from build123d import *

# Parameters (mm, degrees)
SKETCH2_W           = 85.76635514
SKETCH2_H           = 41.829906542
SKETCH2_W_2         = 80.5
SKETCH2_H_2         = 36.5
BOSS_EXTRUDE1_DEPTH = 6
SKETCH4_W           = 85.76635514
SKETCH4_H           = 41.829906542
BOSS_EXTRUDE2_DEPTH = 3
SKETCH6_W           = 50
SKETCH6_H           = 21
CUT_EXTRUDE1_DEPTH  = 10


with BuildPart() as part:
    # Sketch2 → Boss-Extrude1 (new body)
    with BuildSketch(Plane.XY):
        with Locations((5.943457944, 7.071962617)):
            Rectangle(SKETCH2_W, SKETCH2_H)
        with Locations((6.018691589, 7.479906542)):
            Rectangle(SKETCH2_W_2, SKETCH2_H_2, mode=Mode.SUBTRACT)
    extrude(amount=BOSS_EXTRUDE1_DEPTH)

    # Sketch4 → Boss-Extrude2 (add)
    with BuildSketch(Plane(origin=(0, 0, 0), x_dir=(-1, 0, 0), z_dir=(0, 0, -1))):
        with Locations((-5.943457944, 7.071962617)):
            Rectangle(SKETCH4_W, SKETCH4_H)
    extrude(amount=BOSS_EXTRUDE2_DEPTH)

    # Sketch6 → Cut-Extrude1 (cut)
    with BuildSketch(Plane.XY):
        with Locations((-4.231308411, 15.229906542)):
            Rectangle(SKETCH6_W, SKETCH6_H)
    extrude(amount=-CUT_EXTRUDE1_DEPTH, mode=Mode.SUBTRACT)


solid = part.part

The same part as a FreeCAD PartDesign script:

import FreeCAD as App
import Part
import Sketcher


def add_polygon(sketch, points):
    """Adds a closed chain of lines whose ends are joined by coincident constraints."""
    first, n = sketch.GeometryCount, len(points)
    for a, b in zip(points, points[1:] + points[:1]):
        sketch.addGeometry(Part.LineSegment(App.Vector(*a, 0), App.Vector(*b, 0)), False)
    for i in range(n):
        sketch.addConstraint(Sketcher.Constraint("Coincident", first + i, 2, first + (i + 1) % n, 1))

doc = App.newDocument("Part")
params = doc.addObject("Spreadsheet::Sheet", "Params")
for row, (alias, value) in enumerate([
    ("sketch1_width", "80.5 mm"),
    ("sketch1_height", "36.5 mm"),
    ("pad1_length", "6 mm"),
    ("pad2_length", "3 mm"),
    ("sketch3_width", "50 mm"),
    ("sketch3_height", "21 mm"),
    ("pocket1_length", "10 mm"),
], start=1):
    params.set(f"A{row}", alias)
    params.set(f"B{row}", "=" + value)
    params.setAlias(f"B{row}", alias)

body = doc.addObject("PartDesign::Body", "Body")

# Sketch on XY plane
sketch1 = body.newObject("Sketcher::SketchObject", "Sketch")
sketch1.AttachmentSupport = (doc.getObject("XY_Plane"), [""])
sketch1.MapMode = "FlatFace"
add_polygon(sketch1, [(-37, 28), (-37, -14), (49, -14), (49, 28)])  # lines 0-3
add_polygon(sketch1, [(46, -11), (-34, -11), (-34, 26), (46, 26)])  # lines 4-7
sketch1.addConstraint(Sketcher.Constraint("Vertical", 0))
sketch1.addConstraint(Sketcher.Constraint("Horizontal", 1))
sketch1.addConstraint(Sketcher.Constraint("Vertical", 2))
sketch1.addConstraint(Sketcher.Constraint("Horizontal", 3))
sketch1.addConstraint(Sketcher.Constraint("Horizontal", 4))
sketch1.addConstraint(Sketcher.Constraint("Vertical", 5))
sketch1.addConstraint(Sketcher.Constraint("Horizontal", 6))
sketch1.addConstraint(Sketcher.Constraint("Vertical", 7))
sketch1.addConstraint(Sketcher.Constraint("DistanceX", 4, 2, 4, 1, 80.5))
sketch1.addConstraint(Sketcher.Constraint("DistanceY", 5, 1, 5, 2, 36.5))
sketch1.addConstraint(Sketcher.Constraint("DistanceX", 1, 1, 1, 2, 85.766355))
sketch1.addConstraint(Sketcher.Constraint("DistanceY", 0, 2, 0, 1, 41.829907))
sketch1.addConstraint(Sketcher.Constraint("DistanceX", 0, 2, -1, 1, 36.93972))
sketch1.addConstraint(Sketcher.Constraint("DistanceY", 0, 2, -1, 1, 13.842991))
sketch1.addConstraint(Sketcher.Constraint("DistanceX", 4, 2, -1, 1, 34.231308))
sketch1.addConstraint(Sketcher.Constraint("DistanceY", 4, 2, 3, 2, 38.757009))
sketch1.setExpression("Constraints[16]", "Params.sketch1_width")
sketch1.setExpression("Constraints[17]", "Params.sketch1_height")
pad1 = body.newObject("PartDesign::Pad", "Pad")
pad1.Profile = sketch1
pad1.setExpression("Length", "Params.pad1_length")

# Sketch on XY plane
sketch2 = body.newObject("Sketcher::SketchObject", "Sketch001")
sketch2.AttachmentSupport = (doc.getObject("XY_Plane"), [""])
sketch2.MapMode = "FlatFace"
add_polygon(sketch2, [(49, 28), (49, -14), (-37, -14), (-37, 28)])  # lines 0-3
sketch2.addConstraint(Sketcher.Constraint("Vertical", 0))
sketch2.addConstraint(Sketcher.Constraint("Horizontal", 1))
sketch2.addConstraint(Sketcher.Constraint("Vertical", 2))
sketch2.addConstraint(Sketcher.Constraint("Horizontal", 3))
sketch2.addConstraint(Sketcher.Constraint("DistanceX", 1, 2, 1, 1, 85.766355))
sketch2.addConstraint(Sketcher.Constraint("DistanceY", 0, 2, 0, 1, 41.829907))
sketch2.addConstraint(Sketcher.Constraint("DistanceY", 0, 2, -1, 1, 13.842991))
sketch2.addConstraint(Sketcher.Constraint("DistanceX", 1, 2, -1, 1, 36.93972))
pad2 = body.newObject("PartDesign::Pad", "Pad001")
pad2.Profile = sketch2
pad2.setExpression("Length", "Params.pad2_length")
pad2.Reversed = True

# Sketch on XY plane
sketch3 = body.newObject("Sketcher::SketchObject", "Sketch002")
sketch3.AttachmentSupport = (doc.getObject("XY_Plane"), [""])
sketch3.MapMode = "FlatFace"
add_polygon(sketch3, [(-29, 26), (-29, 5), (21, 5), (21, 26)])  # lines 0-3
sketch3.addConstraint(Sketcher.Constraint("Vertical", 0))
sketch3.addConstraint(Sketcher.Constraint("Horizontal", 1))
sketch3.addConstraint(Sketcher.Constraint("Vertical", 2))
sketch3.addConstraint(Sketcher.Constraint("Horizontal", 3))
sketch3.addConstraint(Sketcher.Constraint("DistanceX", 1, 1, 1, 2, 50.0))
sketch3.addConstraint(Sketcher.Constraint("DistanceY", 0, 2, 0, 1, 21.0))
sketch3.addConstraint(Sketcher.Constraint("DistanceX", 0, 2, -1, 1, 29.231308))
sketch3.addConstraint(Sketcher.Constraint("DistanceY", -1, 1, 0, 2, 4.729907))
sketch3.setExpression("Constraints[8]", "Params.sketch3_width")
sketch3.setExpression("Constraints[9]", "Params.sketch3_height")
pocket1 = body.newObject("PartDesign::Pocket", "Pocket")
pocket1.Profile = sketch3
pocket1.setExpression("Length", "Params.pocket1_length")

doc.recompute()
